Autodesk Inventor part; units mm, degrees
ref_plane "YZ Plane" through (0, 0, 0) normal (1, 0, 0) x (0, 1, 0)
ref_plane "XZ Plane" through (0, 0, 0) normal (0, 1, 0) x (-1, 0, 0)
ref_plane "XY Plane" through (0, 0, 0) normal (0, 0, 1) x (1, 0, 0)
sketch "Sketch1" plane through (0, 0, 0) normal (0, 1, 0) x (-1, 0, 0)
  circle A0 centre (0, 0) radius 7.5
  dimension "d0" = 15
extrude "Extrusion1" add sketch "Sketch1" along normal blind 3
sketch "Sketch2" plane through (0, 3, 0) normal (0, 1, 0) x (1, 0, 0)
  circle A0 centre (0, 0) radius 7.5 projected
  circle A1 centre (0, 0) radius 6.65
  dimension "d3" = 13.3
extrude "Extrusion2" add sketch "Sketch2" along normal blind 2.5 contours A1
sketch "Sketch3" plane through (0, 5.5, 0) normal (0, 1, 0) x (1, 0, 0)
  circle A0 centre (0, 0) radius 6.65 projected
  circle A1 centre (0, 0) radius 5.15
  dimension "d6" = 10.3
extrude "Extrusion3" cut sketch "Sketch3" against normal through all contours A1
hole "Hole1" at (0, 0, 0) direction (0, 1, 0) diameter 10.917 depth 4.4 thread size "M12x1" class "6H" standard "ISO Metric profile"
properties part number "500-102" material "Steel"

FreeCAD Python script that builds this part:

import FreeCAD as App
import Part
import Sketcher

doc = App.newDocument("Part")
body = doc.addObject("PartDesign::Body", "Body")

# Sketch on XZ plane
sketch1 = doc.addObject("Sketcher::SketchObject", "Sketch")
body.addObject(sketch1)
sketch1.AttachmentSupport = (doc.XZ_Plane, [""])
sketch1.MapMode = "FlatFace"
sketch1.addGeometry(Part.Circle(App.Vector(0, 0, 0), App.Vector(0, 0, 1), 8), False)
sketch1.addConstraint(Sketcher.Constraint("Coincident", 0, 3, -1, 1))
sketch1.addConstraint(Sketcher.Constraint("Diameter", 0, 15.0))
pad1 = doc.addObject("PartDesign::Pad", "Pad")
body.addObject(pad1)
pad1.Profile = sketch1
pad1.Length = 3
pad1.Reversed = True

# Sketch on XZ plane
sketch2 = doc.addObject("Sketcher::SketchObject", "Sketch001")
body.addObject(sketch2)
sketch2.AttachmentSupport = (doc.XZ_Plane, [""])
sketch2.MapMode = "FlatFace"
sketch2.AttachmentOffset = App.Placement(App.Vector(0, 0, -3), App.Rotation())
sketch2.addGeometry(Part.Circle(App.Vector(0, 0, 0), App.Vector(0, 0, 1), 7), False)
sketch2.addConstraint(Sketcher.Constraint("Coincident", 0, 3, -1, 1))
sketch2.addConstraint(Sketcher.Constraint("Diameter", 0, 13.3))
pad2 = doc.addObject("PartDesign::Pad", "Pad001")
body.addObject(pad2)
pad2.Profile = sketch2
pad2.Length = 2.5
pad2.Reversed = True

# Sketch on XZ plane
sketch3 = doc.addObject("Sketcher::SketchObject", "Sketch002")
body.addObject(sketch3)
sketch3.AttachmentSupport = (doc.XZ_Plane, [""])
sketch3.MapMode = "FlatFace"
sketch3.AttachmentOffset = App.Placement(App.Vector(0, 0, -5.5), App.Rotation())
sketch3.addGeometry(Part.Circle(App.Vector(0, 0, 0), App.Vector(0, 0, 1), 5), False)
sketch3.addConstraint(Sketcher.Constraint("Coincident", 0, 3, -1, 1))
sketch3.addConstraint(Sketcher.Constraint("Diameter", 0, 10.3))
pocket1 = doc.addObject("PartDesign::Pocket", "Pocket")
body.addObject(pocket1)
pocket1.Profile = sketch3
pocket1.Type = "ThroughAll"
pocket1.Reversed = True

# Sketch on XZ plane
sketch4 = doc.addObject("Sketcher::SketchObject", "Sketch003")
body.addObject(sketch4)
sketch4.AttachmentSupport = (doc.XZ_Plane, [""])
sketch4.MapMode = "FlatFace"
sketch4.addGeometry(Part.Circle(App.Vector(0, 0, 0), App.Vector(0, 0, 1), 5), False)
sketch4.addConstraint(Sketcher.Constraint("Coincident", 0, 3, -1, 1))
sketch4.addConstraint(Sketcher.Constraint("Diameter", 0, 10.917))
doc.recompute()
hole = doc.addObject("PartDesign::Hole", "Hole")
body.addObject(hole)
hole.Profile = sketch4
hole.ThreadType = "None"
hole.Diameter = 10.917
hole.DepthType = "Dimension"
hole.Depth = 4.4
hole.DrillPoint = "Flat"

doc.recompute()
